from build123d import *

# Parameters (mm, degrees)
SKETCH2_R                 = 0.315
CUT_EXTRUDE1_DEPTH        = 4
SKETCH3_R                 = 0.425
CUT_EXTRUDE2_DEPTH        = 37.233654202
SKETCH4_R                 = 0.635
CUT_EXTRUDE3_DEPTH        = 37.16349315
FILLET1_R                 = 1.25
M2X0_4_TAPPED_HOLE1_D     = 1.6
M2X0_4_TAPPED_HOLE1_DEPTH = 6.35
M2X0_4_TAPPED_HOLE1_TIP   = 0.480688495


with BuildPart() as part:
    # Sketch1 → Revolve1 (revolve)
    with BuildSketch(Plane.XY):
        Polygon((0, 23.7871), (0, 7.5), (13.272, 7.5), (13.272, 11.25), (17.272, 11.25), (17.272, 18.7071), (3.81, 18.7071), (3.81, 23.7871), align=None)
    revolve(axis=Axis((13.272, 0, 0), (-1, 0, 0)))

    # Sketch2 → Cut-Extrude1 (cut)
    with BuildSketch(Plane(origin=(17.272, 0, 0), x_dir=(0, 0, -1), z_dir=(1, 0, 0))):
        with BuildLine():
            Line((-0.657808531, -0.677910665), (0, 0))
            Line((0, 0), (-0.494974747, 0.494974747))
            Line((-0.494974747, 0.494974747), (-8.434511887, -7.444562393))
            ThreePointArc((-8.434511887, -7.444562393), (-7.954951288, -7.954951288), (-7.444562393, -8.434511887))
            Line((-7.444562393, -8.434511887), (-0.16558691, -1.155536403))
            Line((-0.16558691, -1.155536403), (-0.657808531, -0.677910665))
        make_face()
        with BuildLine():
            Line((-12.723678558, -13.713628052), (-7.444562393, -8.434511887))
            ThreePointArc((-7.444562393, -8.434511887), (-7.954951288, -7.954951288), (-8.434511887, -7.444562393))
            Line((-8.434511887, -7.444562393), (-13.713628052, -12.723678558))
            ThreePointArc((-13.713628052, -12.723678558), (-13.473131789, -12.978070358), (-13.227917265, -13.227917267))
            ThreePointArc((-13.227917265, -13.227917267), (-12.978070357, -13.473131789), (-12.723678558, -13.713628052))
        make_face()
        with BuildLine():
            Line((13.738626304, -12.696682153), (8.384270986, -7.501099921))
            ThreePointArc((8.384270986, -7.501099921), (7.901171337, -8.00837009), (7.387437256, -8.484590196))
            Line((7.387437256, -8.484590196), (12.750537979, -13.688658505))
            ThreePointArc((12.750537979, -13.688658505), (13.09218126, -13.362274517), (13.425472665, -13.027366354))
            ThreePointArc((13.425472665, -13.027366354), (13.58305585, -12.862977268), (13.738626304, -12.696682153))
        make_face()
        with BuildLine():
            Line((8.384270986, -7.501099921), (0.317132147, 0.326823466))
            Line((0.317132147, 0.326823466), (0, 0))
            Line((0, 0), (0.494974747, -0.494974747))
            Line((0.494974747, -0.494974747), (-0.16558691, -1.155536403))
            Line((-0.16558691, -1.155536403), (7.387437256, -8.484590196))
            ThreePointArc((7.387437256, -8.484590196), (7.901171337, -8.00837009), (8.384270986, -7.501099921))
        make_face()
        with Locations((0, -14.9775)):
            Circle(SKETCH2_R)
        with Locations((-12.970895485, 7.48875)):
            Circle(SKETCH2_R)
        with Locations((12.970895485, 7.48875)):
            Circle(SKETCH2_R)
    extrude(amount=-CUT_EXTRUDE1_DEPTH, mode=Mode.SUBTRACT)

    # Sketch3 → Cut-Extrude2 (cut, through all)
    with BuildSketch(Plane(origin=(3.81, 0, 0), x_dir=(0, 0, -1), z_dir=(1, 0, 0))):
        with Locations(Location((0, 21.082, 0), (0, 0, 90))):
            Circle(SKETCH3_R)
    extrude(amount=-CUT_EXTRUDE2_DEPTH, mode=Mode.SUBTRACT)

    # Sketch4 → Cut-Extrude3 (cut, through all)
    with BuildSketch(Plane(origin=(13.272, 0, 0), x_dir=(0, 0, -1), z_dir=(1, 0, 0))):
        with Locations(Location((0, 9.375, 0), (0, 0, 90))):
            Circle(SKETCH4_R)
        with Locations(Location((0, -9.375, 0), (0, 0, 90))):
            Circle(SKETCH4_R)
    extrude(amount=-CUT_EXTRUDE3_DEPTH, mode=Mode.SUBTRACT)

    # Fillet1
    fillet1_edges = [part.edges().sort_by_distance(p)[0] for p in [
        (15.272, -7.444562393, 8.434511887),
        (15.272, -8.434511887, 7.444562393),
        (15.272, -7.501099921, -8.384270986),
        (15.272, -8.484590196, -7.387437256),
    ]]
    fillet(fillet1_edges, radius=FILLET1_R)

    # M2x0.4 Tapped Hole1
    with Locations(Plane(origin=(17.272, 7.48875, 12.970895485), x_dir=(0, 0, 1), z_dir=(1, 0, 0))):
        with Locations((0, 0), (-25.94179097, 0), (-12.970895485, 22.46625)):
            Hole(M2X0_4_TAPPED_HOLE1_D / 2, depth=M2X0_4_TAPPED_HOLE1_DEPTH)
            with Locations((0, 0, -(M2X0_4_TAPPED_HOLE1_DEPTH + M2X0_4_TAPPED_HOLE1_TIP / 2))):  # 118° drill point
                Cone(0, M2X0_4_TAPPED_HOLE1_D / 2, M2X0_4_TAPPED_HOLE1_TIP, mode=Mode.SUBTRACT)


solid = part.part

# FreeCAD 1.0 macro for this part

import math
import FreeCAD as App
import Part
import Sketcher
Q = App.Units.Quantity


def edges_at(feature, points):
    """Names of the edges that pass closest to the given points."""
    edges = feature.Shape.Edges
    near = lambda p: min(range(len(edges)), key=lambda i: edges[i].distToShape(Part.Vertex(*p))[0])
    return sorted({f"Edge{near(p) + 1}" for p in points})


def add_polygon(sketch, points):
    """Adds a closed chain of lines whose ends are joined by coincident constraints."""
    first, n = sketch.GeometryCount, len(points)
    for a, b in zip(points, points[1:] + points[:1]):
        sketch.addGeometry(Part.LineSegment(App.Vector(*a, 0), App.Vector(*b, 0)), False)
    for i in range(n):
        sketch.addConstraint(Sketcher.Constraint("Coincident", first + i, 2, first + (i + 1) % n, 1))

doc = App.newDocument("Part")
body = doc.addObject("PartDesign::Body", "Body")

sketch1 = body.newObject("Sketcher::SketchObject", "Sketch")
sketch1.AttachmentSupport = (doc.getObject("XY_Plane"), [""])
sketch1.MapMode = "FlatFace"
add_polygon(sketch1, [(0, 23.8), (0, 7.5), (13.3, 7.5), (13.3, 11.2), (17.3, 11.2), (17.3, 18.7), (3.8, 18.7), (3.8, 23.8)])
sketch1.addConstraint([
    Sketcher.Constraint("Vertical", 0),
    Sketcher.Constraint("Horizontal", 1),
    Sketcher.Constraint("Vertical", 2),
    Sketcher.Constraint("Horizontal", 3),
    Sketcher.Constraint("Vertical", 4),
    Sketcher.Constraint("Horizontal", 5),
    Sketcher.Constraint("Vertical", 6),
    Sketcher.Constraint("Horizontal", 7),
    Sketcher.Constraint("PointOnObject", 0, 2, -2),
    Sketcher.Constraint("DistanceY", 6, 1, 6, 2, Q("0.2 in")),
    Sketcher.Constraint("DistanceX", 5, 2, 5, 1, Q("0.53 in")),
    Sketcher.Constraint("DistanceX", 7, 2, 7, 1, Q("0.15 in")),
    Sketcher.Constraint("DistanceX", 1, 1, 1, 2, 13.272),
    Sketcher.Constraint("DistanceY", 0, 2, 0, 1, 16.2871),
    Sketcher.Constraint("DistanceY", 2, 1, 2, 2, 3.75),
    Sketcher.Constraint("DistanceY", -1, 1, 4, 2, Q("0.7365 in")),
])
revolution = body.newObject("PartDesign::Revolution", "Revolution")
revolution.Profile = sketch1
revolution.ReferenceAxis = (sketch1, ["H_Axis"])
revolution.Angle = 360

sketch2 = body.newObject("Sketcher::SketchObject", "Sketch001")
sketch2.AttachmentSupport = (doc.getObject("YZ_Plane"), [""])
sketch2.MapMode = "FlatFace"
sketch2.AttachmentOffset = App.Placement(App.Vector(0, 0, 0.68 * 25.4), App.Rotation())
sketch2.addGeometry([
    Part.LineSegment(App.Vector(-0.68, 0.66, 0), App.Vector(0, 0, 0)),
    Part.LineSegment(App.Vector(0, 0, 0), App.Vector(0.49, 0.49, 0)),
    Part.LineSegment(App.Vector(0.49, 0.49, 0), App.Vector(-12.72, 13.71, 0)),
    Part.ArcOfCircle(Part.Circle(App.Vector(0, 0, 0), App.Vector(0, 0, 1), 18.71), math.radians(132.86), math.radians(135)),
    Part.ArcOfCircle(Part.Circle(App.Vector(0, 0, 0), App.Vector(0, 0, 1), 18.71), math.radians(135), math.radians(137.14)),
    Part.LineSegment(App.Vector(-13.71, 12.72, 0), App.Vector(-8.43, 7.44, 0)),
    Part.LineSegment(App.Vector(-8.43, 7.44, 0), App.Vector(-1.16, 0.17, 0)),
    Part.LineSegment(App.Vector(-1.16, 0.17, 0), App.Vector(-0.68, 0.66, 0)),
    Part.LineSegment(App.Vector(-12.7, -13.74, 0), App.Vector(-7.5, -8.38, 0)),
    Part.LineSegment(App.Vector(-7.5, -8.38, 0), App.Vector(0.33, -0.32, 0)),
    Part.LineSegment(App.Vector(0.33, -0.32, 0), App.Vector(0, 0, 0)),
    Part.LineSegment(App.Vector(0, 0, 0), App.Vector(-0.49, -0.49, 0)),
    Part.LineSegment(App.Vector(-0.49, -0.49, 0), App.Vector(-1.16, 0.17, 0)),
    Part.LineSegment(App.Vector(-1.16, 0.17, 0), App.Vector(-8.48, -7.39, 0)),
    Part.LineSegment(App.Vector(-8.48, -7.39, 0), App.Vector(-13.69, -12.75, 0)),
    Part.ArcOfCircle(Part.Circle(App.Vector(0, 0, 0), App.Vector(0, 0, 1), 18.71), math.radians(-137.03), math.radians(-134.14)),
    Part.ArcOfCircle(Part.Circle(App.Vector(0, 0, 0), App.Vector(0, 0, 1), 18.71), math.radians(-134.14), math.radians(-132.74)),
    Part.Circle(App.Vector(-14.98, 0, 0), App.Vector(0, 0, 1), 0.32),
    Part.Circle(App.Vector(7.49, 12.97, 0), App.Vector(0, 0, 1), 0.32),
    Part.Circle(App.Vector(7.49, -12.97, 0), App.Vector(0, 0, 1), 0.32),
], False)
sketch2.addConstraint([
    Sketcher.Constraint("Coincident", 0, 2, 1, 1),
    Sketcher.Constraint("Coincident", 1, 2, 2, 1),
    Sketcher.Constraint("Coincident", 2, 2, 3, 1),
    Sketcher.Constraint("Tangent", 3, 2, 4, 1),
    Sketcher.Constraint("Coincident", 4, 2, 5, 1),
    Sketcher.Constraint("Coincident", 5, 2, 6, 1),
    Sketcher.Constraint("Coincident", 6, 2, 7, 1),
    Sketcher.Constraint("Coincident", 7, 2, 0, 1),
    Sketcher.Constraint("Coincident", 8, 2, 9, 1),
    Sketcher.Constraint("Coincident", 9, 2, 10, 1),
    Sketcher.Constraint("Coincident", 10, 2, 11, 1),
    Sketcher.Constraint("Coincident", 11, 2, 12, 1),
    Sketcher.Constraint("Coincident", 12, 2, 13, 1),
    Sketcher.Constraint("Coincident", 13, 2, 14, 1),
    Sketcher.Constraint("Coincident", 14, 2, 15, 1),
    Sketcher.Constraint("Tangent", 15, 2, 16, 1),
    Sketcher.Constraint("Coincident", 16, 2, 8, 1),
    Sketcher.Constraint("Coincident", 3, 3, -1, 1),
    Sketcher.Constraint("Coincident", 15, 3, -1, 1),
    Sketcher.Constraint("Coincident", 0, 2, -1, 1),
    Sketcher.Constraint("Coincident", 10, 2, -1, 1),
    Sketcher.Constraint("Coincident", 12, 2, 6, 2),
    Sketcher.Constraint("Equal", 4, 15),
    Sketcher.Constraint("Equal", 3, 16),
    Sketcher.Constraint("Equal", 17, 18),
    Sketcher.Constraint("Equal", 18, 19),
    Sketcher.Constraint("Symmetric", 1, 2, 11, 2, -1, 1),
    Sketcher.Constraint("Symmetric", 18, 3, 19, 3, -1),
    Sketcher.Constraint("PointOnObject", 17, 3, -1),
    Sketcher.Constraint("Perpendicular", 1, 2),
    Sketcher.Constraint("Parallel", 2, 5),
    Sketcher.Constraint("Parallel", 5, 6),
    Sketcher.Constraint("Perpendicular", 0, 7),
    Sketcher.Constraint("Parallel", 7, 8),
    Sketcher.Constraint("Parallel", 8, 9),
    Sketcher.Constraint("Perpendicular", 9, 10),
    Sketcher.Constraint("Perpendicular", 11, 12),
    Sketcher.Constraint("Perpendicular", 10, 13),
    Sketcher.Constraint("Parallel", 13, 14),
    Sketcher.Constraint("Angle", 1, Q("45 deg")),
    Sketcher.Constraint("Radius", 3, Q("0.7364998 in")),
    Sketcher.Constraint("Radius", 4, Q("0.7365 in")),
    Sketcher.Constraint("Diameter", 17, 0.63),
    Sketcher.Constraint("Distance", 1, 0.7),
    Sketcher.Constraint("DistanceX", 17, 3, -1, 1, 14.9775),
    Sketcher.Constraint("DistanceX", 8, 2, -1, 1, 7.5011),
    Sketcher.Constraint("DistanceY", 16, 3, 18, 3, 12.970899),
    Sketcher.Constraint("DistanceY", 14, 2, 13, 2, 5.363101),
    Sketcher.Constraint("DistanceY", 15, 2, 8, 2, 5.041202),
    Sketcher.Constraint("Distance", 9, 11.240779),
    Sketcher.Constraint("Distance", 13, 10.52441),
    Sketcher.Constraint("DistanceX", -1, 1, 18, 3, 7.48875),
    Sketcher.Constraint("DistanceX", 5, 2, -1, 1, 8.434512),
    Sketcher.Constraint("DistanceX", 7, 2, -1, 1, 0.677911),
    Sketcher.Constraint("DistanceX", 3, 2, 2, 2, 0.504239),
])
pocket1 = body.newObject("PartDesign::Pocket", "Pocket")
pocket1.Profile = sketch2
pocket1.Length = 4

sketch3 = body.newObject("Sketcher::SketchObject", "Sketch002")
sketch3.AttachmentSupport = (doc.getObject("YZ_Plane"), [""])
sketch3.MapMode = "FlatFace"
sketch3.AttachmentOffset = App.Placement(App.Vector(0, 0, 0.15 * 25.4), App.Rotation())
sketch3.addGeometry(Part.Circle(App.Vector(21.08, 0, 0), App.Vector(0, 0, 1), 0.42), False)
sketch3.addConstraint([
    Sketcher.Constraint("PointOnObject", 0, 3, -1),
    Sketcher.Constraint("Diameter", 0, 0.85),
    Sketcher.Constraint("DistanceX", -1, 1, 0, 3, Q("0.83 in")),
])
pocket2 = body.newObject("PartDesign::Pocket", "Pocket001")
pocket2.Profile = sketch3
pocket2.Type = "ThroughAll"

sketch4 = body.newObject("Sketcher::SketchObject", "Sketch003")
sketch4.AttachmentSupport = (doc.getObject("YZ_Plane"), [""])
sketch4.MapMode = "FlatFace"
sketch4.AttachmentOffset = App.Placement(App.Vector(0, 0, 13.272), App.Rotation())
sketch4.addGeometry([
    Part.Circle(App.Vector(9.4, 0, 0), App.Vector(0, 0, 1), 0.6),
    Part.Circle(App.Vector(-9.4, 0, 0), App.Vector(0, 0, 1), 0.6),
], False)
sketch4.addConstraint([
    Sketcher.Constraint("Equal", 0, 1),
    Sketcher.Constraint("Symmetric", 0, 3, 1, 3, -1, 1),
    Sketcher.Constraint("PointOnObject", 0, 3, -1),
    Sketcher.Constraint("Diameter", 0, Q("0.05 in")),
    Sketcher.Constraint("DistanceX", -1, 1, 0, 3, 9.375),
])
pocket3 = body.newObject("PartDesign::Pocket", "Pocket002")
pocket3.Profile = sketch4
pocket3.Type = "ThroughAll"
doc.recompute()

fillet = body.newObject("PartDesign::Fillet", "Fillet")
fillet.Base = (pocket3, edges_at(pocket3, [
    (15.272, -7.445, 8.435),
    (15.272, -8.435, 7.445),
    (15.272, -7.501, -8.384),
    (15.272, -8.485, -7.387),
]))
fillet.Radius = 1.25

sketch5 = body.newObject("Sketcher::SketchObject", "Sketch004")
sketch5.AttachmentSupport = (doc.getObject("YZ_Plane"), [""])
sketch5.MapMode = "FlatFace"
sketch5.AttachmentOffset = App.Placement(App.Vector(0, 0, 0.68 * 25.4), App.Rotation())
sketch5.addGeometry([
    Part.Circle(App.Vector(7.5, 13, 0), App.Vector(0, 0, 1), 0.8),
    Part.Circle(App.Vector(7.5, -13, 0), App.Vector(0, 0, 1), 0.8),
    Part.Circle(App.Vector(-15, 0, 0), App.Vector(0, 0, 1), 0.8),
], False)
sketch5.addConstraint([
    Sketcher.Constraint("Equal", 0, 1),
    Sketcher.Constraint("Equal", 1, 2),
    Sketcher.Constraint("Symmetric", 0, 3, 1, 3, -1),
    Sketcher.Constraint("PointOnObject", 2, 3, -1),
    Sketcher.Constraint("Diameter", 0, 1.6),
    Sketcher.Constraint("DistanceX", 2, 3, -1, 1, 14.9775),
    Sketcher.Constraint("DistanceX", -1, 1, 0, 3, 7.48875),
    Sketcher.Constraint("DistanceY", 1, 3, 0, 3, 25.941791),
])
doc.recompute()
hole = body.newObject("PartDesign::Hole", "Hole")
hole.Profile = sketch5
hole.ThreadType = "None"
hole.Diameter = 1.6
hole.DepthType = "Dimension"
hole.Depth = Q("0.25 in")
hole.DrillPoint = "Angled"
hole.DrillPointAngle = 118

doc.recompute()
